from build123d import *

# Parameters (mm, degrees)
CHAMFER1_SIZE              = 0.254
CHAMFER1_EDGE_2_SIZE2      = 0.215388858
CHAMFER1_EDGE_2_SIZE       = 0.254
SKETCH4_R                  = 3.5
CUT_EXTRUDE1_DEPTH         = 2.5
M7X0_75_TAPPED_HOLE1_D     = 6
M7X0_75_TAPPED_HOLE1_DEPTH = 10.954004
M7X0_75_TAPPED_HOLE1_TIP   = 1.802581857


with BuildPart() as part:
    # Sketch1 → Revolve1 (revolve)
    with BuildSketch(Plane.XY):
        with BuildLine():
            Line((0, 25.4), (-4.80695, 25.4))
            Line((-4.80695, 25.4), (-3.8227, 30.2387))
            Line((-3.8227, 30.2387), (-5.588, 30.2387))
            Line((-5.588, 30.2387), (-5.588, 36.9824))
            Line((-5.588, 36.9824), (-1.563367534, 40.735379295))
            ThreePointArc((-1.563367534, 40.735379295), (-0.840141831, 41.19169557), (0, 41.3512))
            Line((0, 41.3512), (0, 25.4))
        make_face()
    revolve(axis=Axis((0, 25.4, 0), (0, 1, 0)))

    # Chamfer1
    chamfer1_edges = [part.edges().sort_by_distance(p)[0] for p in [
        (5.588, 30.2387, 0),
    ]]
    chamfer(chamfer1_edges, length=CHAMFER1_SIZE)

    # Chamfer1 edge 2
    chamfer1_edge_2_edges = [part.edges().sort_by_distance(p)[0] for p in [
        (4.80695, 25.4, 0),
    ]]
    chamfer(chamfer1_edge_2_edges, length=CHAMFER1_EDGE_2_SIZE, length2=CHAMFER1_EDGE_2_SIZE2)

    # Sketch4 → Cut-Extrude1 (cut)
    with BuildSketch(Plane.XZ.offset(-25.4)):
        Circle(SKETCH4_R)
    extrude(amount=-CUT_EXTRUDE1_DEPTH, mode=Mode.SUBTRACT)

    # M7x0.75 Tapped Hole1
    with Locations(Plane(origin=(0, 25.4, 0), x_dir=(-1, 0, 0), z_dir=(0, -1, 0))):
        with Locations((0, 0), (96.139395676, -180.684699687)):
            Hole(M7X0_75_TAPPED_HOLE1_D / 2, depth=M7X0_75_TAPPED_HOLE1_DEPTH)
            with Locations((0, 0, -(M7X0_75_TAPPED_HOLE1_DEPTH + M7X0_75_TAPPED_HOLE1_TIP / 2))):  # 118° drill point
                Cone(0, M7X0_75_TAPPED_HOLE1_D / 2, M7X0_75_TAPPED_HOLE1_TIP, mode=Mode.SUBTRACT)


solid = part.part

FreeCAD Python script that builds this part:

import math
import FreeCAD as App
import Part
import Sketcher

V = App.Vector


def edges_at(feature, points):
    """Names of the edges that pass closest to the given points."""
    edges = feature.Shape.Edges
    near = lambda p: min(range(len(edges)), key=lambda i: edges[i].distToShape(Part.Vertex(*p))[0])
    return sorted({f"Edge{near(p) + 1}" for p in points})

doc = App.newDocument("Part")
body = doc.addObject("PartDesign::Body", "Body")

# Sketch on XY plane
sketch1 = doc.addObject("Sketcher::SketchObject", "Sketch")
body.addObject(sketch1)
sketch1.AttachmentSupport = (doc.XY_Plane, [""])
sketch1.MapMode = "FlatFace"
sketch1.addGeometry(Part.LineSegment(V(-4.8, 25.4, 0), V(0, 25.4, 0)), False)
sketch1.addGeometry(Part.LineSegment(V(0, 25.4, 0), V(0, 41.4, 0)), False)
sketch1.addGeometry(Part.ArcOfCircle(Part.Circle(V(0, 39.1, 0), V(0, 0, 1), 2.3), math.radians(90), math.radians(133)), False)
sketch1.addGeometry(Part.LineSegment(V(-1.6, 40.7, 0), V(-5.6, 37, 0)), False)
sketch1.addGeometry(Part.LineSegment(V(-5.6, 37, 0), V(-5.6, 30.2, 0)), False)
sketch1.addGeometry(Part.LineSegment(V(-5.6, 30.2, 0), V(-3.8, 30.2, 0)), False)
sketch1.addGeometry(Part.LineSegment(V(-3.8, 30.2, 0), V(-4.8, 25.4, 0)), False)
sketch1.addConstraint(Sketcher.Constraint("Coincident", 0, 2, 1, 1))
sketch1.addConstraint(Sketcher.Constraint("Coincident", 1, 2, 2, 1))
sketch1.addConstraint(Sketcher.Constraint("Tangent", 2, 2, 3, 1))
sketch1.addConstraint(Sketcher.Constraint("Coincident", 3, 2, 4, 1))
sketch1.addConstraint(Sketcher.Constraint("Coincident", 4, 2, 5, 1))
sketch1.addConstraint(Sketcher.Constraint("Coincident", 5, 2, 6, 1))
sketch1.addConstraint(Sketcher.Constraint("Coincident", 6, 2, 0, 1))
sketch1.addConstraint(Sketcher.Constraint("Horizontal", 0))
sketch1.addConstraint(Sketcher.Constraint("Vertical", 1))
sketch1.addConstraint(Sketcher.Constraint("Vertical", 4))
sketch1.addConstraint(Sketcher.Constraint("Horizontal", 5))
sketch1.addConstraint(Sketcher.Constraint("PointOnObject", 2, 3, -2))
sketch1.addConstraint(Sketcher.Constraint("PointOnObject", 0, 2, -2))
sketch1.addConstraint(Sketcher.Constraint("DistanceY", -1, 1, 0, 2, 25.4))
sketch1.addConstraint(Sketcher.Constraint("Radius", 2, 2.29235))
sketch1.addConstraint(Sketcher.Constraint("DistanceX", 5, 1, 5, 2, 1.7653))
sketch1.addConstraint(Sketcher.Constraint("DistanceY", 1, 1, 1, 2, 15.9512))
sketch1.addConstraint(Sketcher.Constraint("DistanceY", 4, 2, 4, 1, 6.7437))
sketch1.addConstraint(Sketcher.Constraint("DistanceX", 3, 2, -1, 1, 5.588))
sketch1.addConstraint(Sketcher.Constraint("DistanceX", 0, 1, 0, 2, 4.80695))
sketch1.addConstraint(Sketcher.Constraint("DistanceY", -1, 1, 3, 2, 36.9824))
revolution = doc.addObject("PartDesign::Revolution", "Revolution")
body.addObject(revolution)
revolution.Profile = sketch1
revolution.ReferenceAxis = (sketch1, ["V_Axis"])
revolution.Angle = 360
doc.recompute()

chamfer = doc.addObject("PartDesign::Chamfer", "Chamfer")
body.addObject(chamfer)
chamfer.Base = (revolution, edges_at(revolution, [(5.588, 30.239, 0)]))
chamfer.Size = 0.254
doc.recompute()

chamfer2 = doc.addObject("PartDesign::Chamfer", "Chamfer001")
body.addObject(chamfer2)
chamfer2.Base = (chamfer, edges_at(chamfer, [(4.807, 25.4, 0)]))
chamfer2.ChamferType = "Two distances"
chamfer2.Size = 0.254
chamfer2.Size2 = 0.215389

# Sketch on XZ plane
sketch2 = doc.addObject("Sketcher::SketchObject", "Sketch001")
body.addObject(sketch2)
sketch2.AttachmentSupport = (doc.XZ_Plane, [""])
sketch2.MapMode = "FlatFace"
sketch2.AttachmentOffset = App.Placement(V(0, 0, -25.4), App.Rotation())
sketch2.addGeometry(Part.Circle(V(0, 0, 0), V(0, 0, 1), 3.5), False)
sketch2.addConstraint(Sketcher.Constraint("Coincident", 0, 3, -1, 1))
sketch2.addConstraint(Sketcher.Constraint("Diameter", 0, 7.0))
pocket1 = doc.addObject("PartDesign::Pocket", "Pocket")
body.addObject(pocket1)
pocket1.Profile = sketch2
pocket1.Length = 2.5

# Sketch on XZ plane
sketch3 = doc.addObject("Sketcher::SketchObject", "Sketch002")
body.addObject(sketch3)
sketch3.AttachmentSupport = (doc.XZ_Plane, [""])
sketch3.MapMode = "FlatFace"
sketch3.AttachmentOffset = App.Placement(V(0, 0, -25.4), App.Rotation())
sketch3.addGeometry(Part.Circle(V(0, 0, 0), V(0, 0, 1), 3), False)
sketch3.addGeometry(Part.Circle(V(-96.1, 180.7, 0), V(0, 0, 1), 3), False)
sketch3.addConstraint(Sketcher.Constraint("Coincident", 0, 3, -1, 1))
sketch3.addConstraint(Sketcher.Constraint("Equal", 0, 1))
sketch3.addConstraint(Sketcher.Constraint("Diameter", 0, 6.0))
sketch3.addConstraint(Sketcher.Constraint("DistanceY", -1, 1, 1, 3, 180.6847))
sketch3.addConstraint(Sketcher.Constraint("DistanceX", 1, 3, -1, 1, 96.139396))
doc.recompute()
hole = doc.addObject("PartDesign::Hole", "Hole")
body.addObject(hole)
hole.Profile = sketch3
hole.ThreadType = "None"
hole.Diameter = 6
hole.DepthType = "Dimension"
hole.Depth = 10.954004
hole.DrillPoint = "Angled"
hole.DrillPointAngle = 118

doc.recompute()
